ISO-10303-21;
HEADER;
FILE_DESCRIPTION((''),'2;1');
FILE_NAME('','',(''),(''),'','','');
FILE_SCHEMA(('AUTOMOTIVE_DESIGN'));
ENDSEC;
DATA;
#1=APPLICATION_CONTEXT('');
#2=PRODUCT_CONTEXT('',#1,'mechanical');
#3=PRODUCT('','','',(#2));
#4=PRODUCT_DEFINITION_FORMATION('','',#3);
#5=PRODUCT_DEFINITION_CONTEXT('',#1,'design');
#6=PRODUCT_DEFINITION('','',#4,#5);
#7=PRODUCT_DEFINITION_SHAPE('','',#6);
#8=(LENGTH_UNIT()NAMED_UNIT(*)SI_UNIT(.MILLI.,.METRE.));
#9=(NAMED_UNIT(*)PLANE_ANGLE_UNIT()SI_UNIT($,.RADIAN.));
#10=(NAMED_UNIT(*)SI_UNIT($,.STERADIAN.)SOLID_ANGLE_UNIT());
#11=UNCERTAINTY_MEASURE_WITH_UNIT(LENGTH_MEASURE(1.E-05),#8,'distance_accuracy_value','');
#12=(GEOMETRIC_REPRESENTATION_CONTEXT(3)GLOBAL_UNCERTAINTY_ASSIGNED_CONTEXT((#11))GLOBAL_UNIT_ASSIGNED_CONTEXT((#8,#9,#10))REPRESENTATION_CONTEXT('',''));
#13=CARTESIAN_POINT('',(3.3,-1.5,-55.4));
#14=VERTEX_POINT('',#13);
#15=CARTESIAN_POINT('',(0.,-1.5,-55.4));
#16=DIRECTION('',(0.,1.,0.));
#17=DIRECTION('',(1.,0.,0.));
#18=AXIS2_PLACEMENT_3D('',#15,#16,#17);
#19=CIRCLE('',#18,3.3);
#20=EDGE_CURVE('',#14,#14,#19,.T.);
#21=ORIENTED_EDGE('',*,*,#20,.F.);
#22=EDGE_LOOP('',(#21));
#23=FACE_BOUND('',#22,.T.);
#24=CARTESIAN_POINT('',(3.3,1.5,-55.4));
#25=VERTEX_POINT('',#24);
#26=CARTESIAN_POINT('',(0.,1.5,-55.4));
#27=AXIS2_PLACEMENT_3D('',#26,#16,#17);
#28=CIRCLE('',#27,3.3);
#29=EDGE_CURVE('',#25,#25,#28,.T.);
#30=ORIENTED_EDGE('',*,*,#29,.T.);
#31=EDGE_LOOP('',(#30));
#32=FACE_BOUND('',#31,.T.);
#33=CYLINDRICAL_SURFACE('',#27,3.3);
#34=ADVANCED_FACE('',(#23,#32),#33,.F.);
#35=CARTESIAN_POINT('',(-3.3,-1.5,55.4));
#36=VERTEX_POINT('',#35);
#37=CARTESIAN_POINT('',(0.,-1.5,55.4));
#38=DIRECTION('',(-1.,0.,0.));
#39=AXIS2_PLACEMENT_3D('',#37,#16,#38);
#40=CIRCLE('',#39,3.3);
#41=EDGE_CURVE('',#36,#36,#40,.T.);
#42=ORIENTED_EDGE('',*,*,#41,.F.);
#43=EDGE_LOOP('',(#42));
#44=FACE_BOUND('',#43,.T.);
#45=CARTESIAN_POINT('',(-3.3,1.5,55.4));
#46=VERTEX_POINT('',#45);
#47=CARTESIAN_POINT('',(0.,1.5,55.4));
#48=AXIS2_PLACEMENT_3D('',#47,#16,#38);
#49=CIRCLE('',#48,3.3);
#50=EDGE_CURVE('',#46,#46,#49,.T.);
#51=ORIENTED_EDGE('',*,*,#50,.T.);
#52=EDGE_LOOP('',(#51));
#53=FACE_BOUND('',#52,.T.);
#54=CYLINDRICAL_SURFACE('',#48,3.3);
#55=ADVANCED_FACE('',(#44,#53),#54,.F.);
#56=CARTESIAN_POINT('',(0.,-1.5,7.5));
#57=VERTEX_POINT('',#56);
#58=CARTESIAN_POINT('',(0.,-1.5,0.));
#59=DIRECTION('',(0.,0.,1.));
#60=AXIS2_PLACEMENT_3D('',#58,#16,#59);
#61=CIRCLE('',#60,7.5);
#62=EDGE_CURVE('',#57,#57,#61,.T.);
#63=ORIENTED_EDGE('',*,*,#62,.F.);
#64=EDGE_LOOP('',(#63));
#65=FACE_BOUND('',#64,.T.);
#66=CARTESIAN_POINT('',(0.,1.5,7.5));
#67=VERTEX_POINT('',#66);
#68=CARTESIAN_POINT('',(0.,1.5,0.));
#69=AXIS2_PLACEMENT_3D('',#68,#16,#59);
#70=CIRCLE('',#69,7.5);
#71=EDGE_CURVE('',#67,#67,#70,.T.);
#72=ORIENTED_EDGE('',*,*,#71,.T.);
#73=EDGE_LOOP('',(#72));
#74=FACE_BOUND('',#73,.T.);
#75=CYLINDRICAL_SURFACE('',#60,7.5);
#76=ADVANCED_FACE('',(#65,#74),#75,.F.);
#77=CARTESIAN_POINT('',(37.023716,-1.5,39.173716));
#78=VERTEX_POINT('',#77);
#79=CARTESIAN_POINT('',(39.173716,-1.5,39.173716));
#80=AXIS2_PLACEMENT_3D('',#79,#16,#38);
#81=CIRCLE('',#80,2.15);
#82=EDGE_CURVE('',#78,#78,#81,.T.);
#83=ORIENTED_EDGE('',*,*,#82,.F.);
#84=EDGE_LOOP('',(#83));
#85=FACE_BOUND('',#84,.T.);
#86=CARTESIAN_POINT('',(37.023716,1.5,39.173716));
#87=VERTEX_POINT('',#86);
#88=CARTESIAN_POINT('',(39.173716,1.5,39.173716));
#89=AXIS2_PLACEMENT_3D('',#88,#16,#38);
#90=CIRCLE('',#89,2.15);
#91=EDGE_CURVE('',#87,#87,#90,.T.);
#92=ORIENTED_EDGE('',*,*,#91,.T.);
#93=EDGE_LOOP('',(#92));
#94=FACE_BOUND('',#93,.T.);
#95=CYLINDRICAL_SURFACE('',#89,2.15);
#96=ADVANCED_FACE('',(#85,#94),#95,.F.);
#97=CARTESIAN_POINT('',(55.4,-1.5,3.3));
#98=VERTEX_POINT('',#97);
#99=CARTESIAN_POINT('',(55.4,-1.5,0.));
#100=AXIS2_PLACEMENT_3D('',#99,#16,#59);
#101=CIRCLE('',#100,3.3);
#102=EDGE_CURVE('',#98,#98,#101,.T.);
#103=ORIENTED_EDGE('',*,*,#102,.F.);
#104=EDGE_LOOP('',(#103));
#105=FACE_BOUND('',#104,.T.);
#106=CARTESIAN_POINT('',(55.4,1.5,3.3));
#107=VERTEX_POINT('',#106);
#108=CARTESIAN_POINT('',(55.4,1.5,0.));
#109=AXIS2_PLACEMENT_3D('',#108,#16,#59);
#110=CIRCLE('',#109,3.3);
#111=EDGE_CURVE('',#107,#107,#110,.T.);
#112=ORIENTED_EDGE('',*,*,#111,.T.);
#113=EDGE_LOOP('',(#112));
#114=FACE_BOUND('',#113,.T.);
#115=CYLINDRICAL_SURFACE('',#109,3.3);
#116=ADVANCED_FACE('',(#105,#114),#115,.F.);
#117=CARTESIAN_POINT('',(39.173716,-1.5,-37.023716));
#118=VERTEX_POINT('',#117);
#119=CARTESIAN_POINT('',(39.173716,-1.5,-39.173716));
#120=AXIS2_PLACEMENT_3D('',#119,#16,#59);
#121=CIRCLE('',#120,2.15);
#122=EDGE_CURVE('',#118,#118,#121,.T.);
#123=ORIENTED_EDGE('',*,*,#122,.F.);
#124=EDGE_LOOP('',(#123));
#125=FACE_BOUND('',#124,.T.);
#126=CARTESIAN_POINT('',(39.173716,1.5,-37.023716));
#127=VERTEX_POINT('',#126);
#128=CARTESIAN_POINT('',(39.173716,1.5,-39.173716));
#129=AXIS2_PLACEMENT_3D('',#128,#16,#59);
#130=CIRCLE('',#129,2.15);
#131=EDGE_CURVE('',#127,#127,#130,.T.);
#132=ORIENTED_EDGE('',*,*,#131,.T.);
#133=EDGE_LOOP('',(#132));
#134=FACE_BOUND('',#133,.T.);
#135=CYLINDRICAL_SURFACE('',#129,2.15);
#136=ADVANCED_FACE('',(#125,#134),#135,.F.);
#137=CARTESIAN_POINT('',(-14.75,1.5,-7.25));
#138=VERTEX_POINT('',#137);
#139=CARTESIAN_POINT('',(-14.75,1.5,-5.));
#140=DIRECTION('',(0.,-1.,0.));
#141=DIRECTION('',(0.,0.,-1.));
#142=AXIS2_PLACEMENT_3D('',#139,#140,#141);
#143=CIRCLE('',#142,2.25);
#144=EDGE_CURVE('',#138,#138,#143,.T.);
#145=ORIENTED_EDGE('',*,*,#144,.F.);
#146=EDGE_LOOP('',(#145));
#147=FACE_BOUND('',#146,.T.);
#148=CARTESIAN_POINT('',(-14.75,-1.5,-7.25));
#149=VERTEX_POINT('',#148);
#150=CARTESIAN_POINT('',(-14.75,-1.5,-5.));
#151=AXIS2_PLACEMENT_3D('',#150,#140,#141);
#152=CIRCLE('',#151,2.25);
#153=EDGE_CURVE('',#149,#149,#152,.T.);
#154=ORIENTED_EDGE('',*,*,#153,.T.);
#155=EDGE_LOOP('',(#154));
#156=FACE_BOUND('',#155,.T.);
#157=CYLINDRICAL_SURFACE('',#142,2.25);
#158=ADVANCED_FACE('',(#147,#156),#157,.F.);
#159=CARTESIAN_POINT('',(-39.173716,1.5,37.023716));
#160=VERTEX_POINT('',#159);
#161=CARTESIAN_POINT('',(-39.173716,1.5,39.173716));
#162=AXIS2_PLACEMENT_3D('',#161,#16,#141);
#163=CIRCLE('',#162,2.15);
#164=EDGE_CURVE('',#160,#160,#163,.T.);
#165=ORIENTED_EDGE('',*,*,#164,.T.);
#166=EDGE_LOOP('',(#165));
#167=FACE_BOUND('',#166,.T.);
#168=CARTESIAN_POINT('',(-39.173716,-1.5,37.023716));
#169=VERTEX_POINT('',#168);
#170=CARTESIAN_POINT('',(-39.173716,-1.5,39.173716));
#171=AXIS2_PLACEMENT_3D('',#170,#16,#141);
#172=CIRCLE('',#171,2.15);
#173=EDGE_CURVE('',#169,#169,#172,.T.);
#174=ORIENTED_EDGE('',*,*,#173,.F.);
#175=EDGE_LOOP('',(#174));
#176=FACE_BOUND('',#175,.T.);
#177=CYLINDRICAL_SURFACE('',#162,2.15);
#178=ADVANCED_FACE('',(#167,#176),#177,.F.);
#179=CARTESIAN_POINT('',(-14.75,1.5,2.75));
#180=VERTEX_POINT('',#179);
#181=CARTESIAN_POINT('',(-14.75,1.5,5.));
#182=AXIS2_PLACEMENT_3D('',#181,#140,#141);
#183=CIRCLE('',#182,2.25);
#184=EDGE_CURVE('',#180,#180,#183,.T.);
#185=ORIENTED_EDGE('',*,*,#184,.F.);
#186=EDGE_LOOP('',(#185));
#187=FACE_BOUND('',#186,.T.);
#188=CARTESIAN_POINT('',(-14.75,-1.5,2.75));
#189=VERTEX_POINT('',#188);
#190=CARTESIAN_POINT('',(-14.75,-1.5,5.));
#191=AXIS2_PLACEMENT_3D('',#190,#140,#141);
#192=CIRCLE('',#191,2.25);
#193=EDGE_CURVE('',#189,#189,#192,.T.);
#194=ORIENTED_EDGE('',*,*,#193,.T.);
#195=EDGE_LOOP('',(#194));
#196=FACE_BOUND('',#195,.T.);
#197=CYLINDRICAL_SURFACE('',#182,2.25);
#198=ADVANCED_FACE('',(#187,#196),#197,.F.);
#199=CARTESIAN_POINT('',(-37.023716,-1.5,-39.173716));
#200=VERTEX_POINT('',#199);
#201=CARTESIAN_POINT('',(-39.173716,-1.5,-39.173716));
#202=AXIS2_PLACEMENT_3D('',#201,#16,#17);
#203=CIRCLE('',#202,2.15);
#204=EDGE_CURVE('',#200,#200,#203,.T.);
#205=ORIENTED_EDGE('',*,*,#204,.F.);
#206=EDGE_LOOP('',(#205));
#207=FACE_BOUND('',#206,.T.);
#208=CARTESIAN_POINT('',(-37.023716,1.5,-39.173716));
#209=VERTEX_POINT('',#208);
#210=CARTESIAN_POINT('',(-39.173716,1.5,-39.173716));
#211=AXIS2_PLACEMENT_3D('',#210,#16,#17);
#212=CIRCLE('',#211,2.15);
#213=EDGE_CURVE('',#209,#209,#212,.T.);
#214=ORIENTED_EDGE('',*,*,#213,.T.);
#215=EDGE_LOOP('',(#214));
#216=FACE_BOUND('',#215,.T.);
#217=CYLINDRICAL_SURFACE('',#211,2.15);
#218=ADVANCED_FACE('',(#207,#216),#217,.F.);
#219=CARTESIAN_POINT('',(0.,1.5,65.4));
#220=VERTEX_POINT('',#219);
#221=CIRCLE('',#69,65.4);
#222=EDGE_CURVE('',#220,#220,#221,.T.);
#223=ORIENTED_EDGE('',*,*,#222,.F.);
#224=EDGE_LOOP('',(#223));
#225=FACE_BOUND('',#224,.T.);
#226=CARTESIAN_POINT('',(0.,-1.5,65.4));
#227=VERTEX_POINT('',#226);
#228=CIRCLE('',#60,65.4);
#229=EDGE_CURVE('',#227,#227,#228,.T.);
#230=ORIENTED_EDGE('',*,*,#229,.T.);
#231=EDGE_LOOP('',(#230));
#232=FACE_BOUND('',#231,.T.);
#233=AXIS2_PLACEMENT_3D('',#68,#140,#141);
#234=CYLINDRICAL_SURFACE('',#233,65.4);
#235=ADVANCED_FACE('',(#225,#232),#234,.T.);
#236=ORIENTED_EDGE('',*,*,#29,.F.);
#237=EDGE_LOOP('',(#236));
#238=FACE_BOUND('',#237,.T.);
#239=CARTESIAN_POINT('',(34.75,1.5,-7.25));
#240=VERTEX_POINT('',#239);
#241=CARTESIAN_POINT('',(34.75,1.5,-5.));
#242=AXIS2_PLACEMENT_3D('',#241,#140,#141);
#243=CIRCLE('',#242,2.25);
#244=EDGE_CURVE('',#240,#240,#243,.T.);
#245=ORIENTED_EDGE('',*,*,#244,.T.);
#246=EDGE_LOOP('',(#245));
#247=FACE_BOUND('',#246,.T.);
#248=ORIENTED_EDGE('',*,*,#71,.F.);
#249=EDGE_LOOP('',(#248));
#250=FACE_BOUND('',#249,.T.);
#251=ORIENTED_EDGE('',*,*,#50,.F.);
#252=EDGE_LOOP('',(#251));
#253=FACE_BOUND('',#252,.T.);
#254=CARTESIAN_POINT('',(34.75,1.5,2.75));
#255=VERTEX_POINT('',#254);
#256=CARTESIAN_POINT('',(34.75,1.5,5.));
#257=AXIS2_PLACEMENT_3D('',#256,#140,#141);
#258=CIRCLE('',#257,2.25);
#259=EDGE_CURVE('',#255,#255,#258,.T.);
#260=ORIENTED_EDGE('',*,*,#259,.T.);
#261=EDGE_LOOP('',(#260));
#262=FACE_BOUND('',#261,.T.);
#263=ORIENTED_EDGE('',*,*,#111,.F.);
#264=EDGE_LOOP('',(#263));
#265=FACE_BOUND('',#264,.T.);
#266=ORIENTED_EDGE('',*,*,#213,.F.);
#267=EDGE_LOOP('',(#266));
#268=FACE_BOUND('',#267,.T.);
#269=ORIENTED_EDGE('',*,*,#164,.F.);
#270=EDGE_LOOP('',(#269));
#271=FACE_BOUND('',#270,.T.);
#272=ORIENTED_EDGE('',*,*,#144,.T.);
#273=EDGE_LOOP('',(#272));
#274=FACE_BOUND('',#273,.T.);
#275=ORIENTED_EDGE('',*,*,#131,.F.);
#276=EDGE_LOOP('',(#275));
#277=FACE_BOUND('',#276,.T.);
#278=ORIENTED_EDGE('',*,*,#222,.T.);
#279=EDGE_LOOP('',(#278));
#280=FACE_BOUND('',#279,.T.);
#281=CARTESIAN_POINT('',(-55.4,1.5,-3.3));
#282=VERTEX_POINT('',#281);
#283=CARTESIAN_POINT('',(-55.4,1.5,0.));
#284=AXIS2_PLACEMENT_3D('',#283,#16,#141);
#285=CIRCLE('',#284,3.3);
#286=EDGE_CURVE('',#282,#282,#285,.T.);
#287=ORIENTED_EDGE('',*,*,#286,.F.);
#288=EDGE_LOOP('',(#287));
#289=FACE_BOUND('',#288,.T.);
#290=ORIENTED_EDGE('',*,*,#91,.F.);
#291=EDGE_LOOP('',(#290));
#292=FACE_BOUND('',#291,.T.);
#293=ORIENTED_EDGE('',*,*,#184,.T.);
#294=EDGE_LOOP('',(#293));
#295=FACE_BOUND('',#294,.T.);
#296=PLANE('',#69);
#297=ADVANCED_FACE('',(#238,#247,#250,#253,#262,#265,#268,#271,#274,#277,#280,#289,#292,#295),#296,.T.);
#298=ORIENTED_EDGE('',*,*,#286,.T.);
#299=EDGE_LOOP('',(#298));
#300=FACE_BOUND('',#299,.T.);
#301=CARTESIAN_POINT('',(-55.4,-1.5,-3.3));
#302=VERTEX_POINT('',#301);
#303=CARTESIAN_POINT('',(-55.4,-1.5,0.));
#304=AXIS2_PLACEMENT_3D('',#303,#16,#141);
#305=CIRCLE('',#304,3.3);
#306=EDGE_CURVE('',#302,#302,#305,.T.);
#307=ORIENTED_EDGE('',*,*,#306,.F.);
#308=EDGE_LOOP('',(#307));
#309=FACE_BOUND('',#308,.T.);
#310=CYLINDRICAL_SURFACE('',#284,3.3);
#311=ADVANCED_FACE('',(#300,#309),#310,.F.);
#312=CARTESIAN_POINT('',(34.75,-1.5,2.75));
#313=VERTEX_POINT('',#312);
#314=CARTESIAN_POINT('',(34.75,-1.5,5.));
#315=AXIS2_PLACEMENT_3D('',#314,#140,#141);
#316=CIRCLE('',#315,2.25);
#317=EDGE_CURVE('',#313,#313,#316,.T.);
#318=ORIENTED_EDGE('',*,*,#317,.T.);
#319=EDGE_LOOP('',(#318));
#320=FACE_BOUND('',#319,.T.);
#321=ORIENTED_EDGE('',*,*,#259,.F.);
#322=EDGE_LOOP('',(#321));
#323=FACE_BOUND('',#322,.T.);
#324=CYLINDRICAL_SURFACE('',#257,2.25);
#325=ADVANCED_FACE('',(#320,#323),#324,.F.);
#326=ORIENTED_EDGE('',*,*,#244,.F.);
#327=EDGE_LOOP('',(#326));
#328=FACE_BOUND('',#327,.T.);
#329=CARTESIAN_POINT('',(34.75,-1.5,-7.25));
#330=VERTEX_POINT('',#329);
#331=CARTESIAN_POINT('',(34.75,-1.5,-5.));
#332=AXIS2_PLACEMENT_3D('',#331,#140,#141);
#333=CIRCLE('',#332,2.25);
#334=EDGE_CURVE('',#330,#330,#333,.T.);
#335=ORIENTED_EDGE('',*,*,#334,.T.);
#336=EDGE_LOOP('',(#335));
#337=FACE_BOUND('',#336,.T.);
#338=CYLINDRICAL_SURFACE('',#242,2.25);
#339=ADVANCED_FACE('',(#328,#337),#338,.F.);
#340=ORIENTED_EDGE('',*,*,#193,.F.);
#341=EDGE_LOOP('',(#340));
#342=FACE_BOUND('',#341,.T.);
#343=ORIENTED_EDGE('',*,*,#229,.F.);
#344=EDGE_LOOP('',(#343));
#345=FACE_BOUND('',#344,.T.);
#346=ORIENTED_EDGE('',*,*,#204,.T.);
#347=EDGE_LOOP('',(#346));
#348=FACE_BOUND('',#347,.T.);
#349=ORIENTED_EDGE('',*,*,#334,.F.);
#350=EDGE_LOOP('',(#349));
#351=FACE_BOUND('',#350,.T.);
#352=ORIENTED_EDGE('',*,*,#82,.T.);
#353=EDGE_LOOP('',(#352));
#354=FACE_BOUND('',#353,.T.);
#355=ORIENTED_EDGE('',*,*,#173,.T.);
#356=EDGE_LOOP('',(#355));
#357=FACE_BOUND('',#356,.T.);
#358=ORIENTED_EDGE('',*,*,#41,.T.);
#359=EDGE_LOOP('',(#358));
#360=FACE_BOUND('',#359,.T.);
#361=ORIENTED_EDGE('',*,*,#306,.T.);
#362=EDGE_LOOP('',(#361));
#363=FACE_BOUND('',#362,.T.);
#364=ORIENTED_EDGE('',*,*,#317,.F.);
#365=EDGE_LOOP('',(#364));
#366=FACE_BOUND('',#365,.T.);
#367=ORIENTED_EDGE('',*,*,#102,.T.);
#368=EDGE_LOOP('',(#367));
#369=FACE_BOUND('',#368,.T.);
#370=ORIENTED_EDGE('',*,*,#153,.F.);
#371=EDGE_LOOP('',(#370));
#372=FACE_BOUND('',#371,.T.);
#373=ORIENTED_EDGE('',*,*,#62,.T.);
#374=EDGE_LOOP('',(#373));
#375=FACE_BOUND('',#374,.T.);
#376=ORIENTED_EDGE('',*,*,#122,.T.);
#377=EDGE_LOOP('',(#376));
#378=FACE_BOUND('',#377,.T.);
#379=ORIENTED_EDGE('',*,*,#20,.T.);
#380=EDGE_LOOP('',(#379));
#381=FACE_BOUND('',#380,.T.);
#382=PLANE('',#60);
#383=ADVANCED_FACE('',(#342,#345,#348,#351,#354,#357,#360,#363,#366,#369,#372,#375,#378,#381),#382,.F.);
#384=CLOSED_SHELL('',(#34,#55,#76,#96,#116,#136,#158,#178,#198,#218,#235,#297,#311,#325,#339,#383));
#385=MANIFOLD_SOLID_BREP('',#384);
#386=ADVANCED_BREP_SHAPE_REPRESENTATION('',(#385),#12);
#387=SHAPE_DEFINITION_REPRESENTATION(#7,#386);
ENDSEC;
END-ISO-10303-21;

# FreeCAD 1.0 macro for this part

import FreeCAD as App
import Part
import Sketcher

doc = App.newDocument("Part")
body = doc.addObject("PartDesign::Body", "Body")

# Sketch on XZ plane
sketch1 = doc.addObject("Sketcher::SketchObject", "Sketch")
body.addObject(sketch1)
sketch1.AttachmentSupport = (doc.XZ_Plane, [""])
sketch1.MapMode = "FlatFace"
sketch1.addGeometry(Part.Circle(App.Vector(0, 0, 0), App.Vector(0, 0, 1), 65), False)
sketch1.addConstraint(Sketcher.Constraint("Coincident", 0, 3, -1, 1))
sketch1.addConstraint(Sketcher.Constraint("Diameter", 0, 130.8))
pad1 = doc.addObject("PartDesign::Pad", "Pad")
body.addObject(pad1)
pad1.Profile = sketch1
pad1.Length = 3
pad1.Midplane = True

# Sketch on XZ plane
sketch2 = doc.addObject("Sketcher::SketchObject", "Sketch001")
body.addObject(sketch2)
sketch2.AttachmentSupport = (doc.XZ_Plane, [""])
sketch2.MapMode = "FlatFace"
sketch2.AttachmentOffset = App.Placement(App.Vector(0, 0, -1.5), App.Rotation())
sketch2.addGeometry(Part.Circle(App.Vector(55.4, 0, 0), App.Vector(0, 0, 1), 3.3), False)
sketch2.addConstraint(Sketcher.Constraint("PointOnObject", 0, 3, -1))
sketch2.addConstraint(Sketcher.Constraint("Diameter", 0, 6.6))
sketch2.addConstraint(Sketcher.Constraint("DistanceX", -1, 1, 0, 3, 55.4))
doc.recompute()
hole = doc.addObject("PartDesign::Hole", "Hole")
body.addObject(hole)
hole.Profile = sketch2
hole.ThreadType = "None"
hole.Diameter = 6.6
hole.DepthType = "ThroughAll"
hole.Reversed = True
doc.recompute()

polarpattern = doc.addObject("PartDesign::PolarPattern", "PolarPattern")
body.addObject(polarpattern)
polarpattern.Originals = [hole]
polarpattern.Axis = (doc.Y_Axis, [""])
polarpattern.Angle = 360
polarpattern.Occurrences = 4
body.Tip = polarpattern

# Sketch on XZ plane
sketch3 = doc.addObject("Sketcher::SketchObject", "Sketch002")
body.addObject(sketch3)
sketch3.AttachmentSupport = (doc.XZ_Plane, [""])
sketch3.MapMode = "FlatFace"
sketch3.AttachmentOffset = App.Placement(App.Vector(0, 0, -1.5), App.Rotation())
sketch3.addGeometry(Part.Circle(App.Vector(39.2, -39.2, 0), App.Vector(0, 0, 1), 2.1), False)
sketch3.addConstraint(Sketcher.Constraint("Diameter", 0, 4.3))
sketch3.addConstraint(Sketcher.Constraint("DistanceX", -1, 1, 0, 3, 39.173716))
sketch3.addConstraint(Sketcher.Constraint("DistanceY", 0, 3, -1, 1, 39.173716))
doc.recompute()
hole2 = doc.addObject("PartDesign::Hole", "Hole001")
body.addObject(hole2)
hole2.Profile = sketch3
hole2.ThreadType = "None"
hole2.Diameter = 4.3
hole2.DepthType = "ThroughAll"
hole2.Reversed = True
doc.recompute()

polarpattern2 = doc.addObject("PartDesign::PolarPattern", "PolarPattern001")
body.addObject(polarpattern2)
polarpattern2.Originals = [hole2]
polarpattern2.Axis = (doc.Y_Axis, [""])
polarpattern2.Angle = 360
polarpattern2.Occurrences = 4
body.Tip = polarpattern2

# Sketch on XZ plane
sketch4 = doc.addObject("Sketcher::SketchObject", "Sketch003")
body.addObject(sketch4)
sketch4.AttachmentSupport = (doc.XZ_Plane, [""])
sketch4.MapMode = "FlatFace"
sketch4.AttachmentOffset = App.Placement(App.Vector(0, 0, -1.5), App.Rotation())
sketch4.addGeometry(Part.Circle(App.Vector(0, 0, 0), App.Vector(0, 0, 1), 8), False)
sketch4.addConstraint(Sketcher.Constraint("Coincident", 0, 3, -1, 1))
sketch4.addConstraint(Sketcher.Constraint("Diameter", 0, 15.0))
pocket1 = doc.addObject("PartDesign::Pocket", "Pocket")
body.addObject(pocket1)
pocket1.Profile = sketch4
pocket1.Type = "ThroughAll"
pocket1.Reversed = True

# Sketch on XZ plane
sketch5 = doc.addObject("Sketcher::SketchObject", "Sketch004")
body.addObject(sketch5)
sketch5.AttachmentSupport = (doc.XZ_Plane, [""])
sketch5.MapMode = "FlatFace"
sketch5.AttachmentOffset = App.Placement(App.Vector(0, 0, 1.5), App.Rotation())
sketch5.addGeometry(Part.Circle(App.Vector(-14.8, -5, 0), App.Vector(0, 0, 1), 2.2), False)
sketch5.addGeometry(Part.Circle(App.Vector(-14.8, 5, 0), App.Vector(0, 0, 1), 2.2), False)
sketch5.addGeometry(Part.Circle(App.Vector(34.8, -5, 0), App.Vector(0, 0, 1), 2.2), False)
sketch5.addGeometry(Part.Circle(App.Vector(34.8, 5, 0), App.Vector(0, 0, 1), 2.2), False)
sketch5.addConstraint(Sketcher.Constraint("Equal", 0, 1))
sketch5.addConstraint(Sketcher.Constraint("Equal", 1, 2))
sketch5.addConstraint(Sketcher.Constraint("Equal", 2, 3))
sketch5.addConstraint(Sketcher.Constraint("Symmetric", 0, 3, 1, 3, -1))
sketch5.addConstraint(Sketcher.Constraint("Symmetric", 2, 3, 3, 3, -1))
sketch5.addConstraint(Sketcher.Constraint("Horizontal", 0, 3, 2, 3))
sketch5.addConstraint(Sketcher.Constraint("Diameter", 0, 4.5))
sketch5.addConstraint(Sketcher.Constraint("DistanceY", 0, 3, -1, 1, 5.0))
sketch5.addConstraint(Sketcher.Constraint("DistanceX", 0, 3, 2, 3, 49.5))
sketch5.addConstraint(Sketcher.Constraint("DistanceX", 0, 3, -1, 1, 14.75))
pocket2 = doc.addObject("PartDesign::Pocket", "Pocket001")
body.addObject(pocket2)
pocket2.Profile = sketch5
pocket2.Type = "ThroughAll"

doc.recompute()
